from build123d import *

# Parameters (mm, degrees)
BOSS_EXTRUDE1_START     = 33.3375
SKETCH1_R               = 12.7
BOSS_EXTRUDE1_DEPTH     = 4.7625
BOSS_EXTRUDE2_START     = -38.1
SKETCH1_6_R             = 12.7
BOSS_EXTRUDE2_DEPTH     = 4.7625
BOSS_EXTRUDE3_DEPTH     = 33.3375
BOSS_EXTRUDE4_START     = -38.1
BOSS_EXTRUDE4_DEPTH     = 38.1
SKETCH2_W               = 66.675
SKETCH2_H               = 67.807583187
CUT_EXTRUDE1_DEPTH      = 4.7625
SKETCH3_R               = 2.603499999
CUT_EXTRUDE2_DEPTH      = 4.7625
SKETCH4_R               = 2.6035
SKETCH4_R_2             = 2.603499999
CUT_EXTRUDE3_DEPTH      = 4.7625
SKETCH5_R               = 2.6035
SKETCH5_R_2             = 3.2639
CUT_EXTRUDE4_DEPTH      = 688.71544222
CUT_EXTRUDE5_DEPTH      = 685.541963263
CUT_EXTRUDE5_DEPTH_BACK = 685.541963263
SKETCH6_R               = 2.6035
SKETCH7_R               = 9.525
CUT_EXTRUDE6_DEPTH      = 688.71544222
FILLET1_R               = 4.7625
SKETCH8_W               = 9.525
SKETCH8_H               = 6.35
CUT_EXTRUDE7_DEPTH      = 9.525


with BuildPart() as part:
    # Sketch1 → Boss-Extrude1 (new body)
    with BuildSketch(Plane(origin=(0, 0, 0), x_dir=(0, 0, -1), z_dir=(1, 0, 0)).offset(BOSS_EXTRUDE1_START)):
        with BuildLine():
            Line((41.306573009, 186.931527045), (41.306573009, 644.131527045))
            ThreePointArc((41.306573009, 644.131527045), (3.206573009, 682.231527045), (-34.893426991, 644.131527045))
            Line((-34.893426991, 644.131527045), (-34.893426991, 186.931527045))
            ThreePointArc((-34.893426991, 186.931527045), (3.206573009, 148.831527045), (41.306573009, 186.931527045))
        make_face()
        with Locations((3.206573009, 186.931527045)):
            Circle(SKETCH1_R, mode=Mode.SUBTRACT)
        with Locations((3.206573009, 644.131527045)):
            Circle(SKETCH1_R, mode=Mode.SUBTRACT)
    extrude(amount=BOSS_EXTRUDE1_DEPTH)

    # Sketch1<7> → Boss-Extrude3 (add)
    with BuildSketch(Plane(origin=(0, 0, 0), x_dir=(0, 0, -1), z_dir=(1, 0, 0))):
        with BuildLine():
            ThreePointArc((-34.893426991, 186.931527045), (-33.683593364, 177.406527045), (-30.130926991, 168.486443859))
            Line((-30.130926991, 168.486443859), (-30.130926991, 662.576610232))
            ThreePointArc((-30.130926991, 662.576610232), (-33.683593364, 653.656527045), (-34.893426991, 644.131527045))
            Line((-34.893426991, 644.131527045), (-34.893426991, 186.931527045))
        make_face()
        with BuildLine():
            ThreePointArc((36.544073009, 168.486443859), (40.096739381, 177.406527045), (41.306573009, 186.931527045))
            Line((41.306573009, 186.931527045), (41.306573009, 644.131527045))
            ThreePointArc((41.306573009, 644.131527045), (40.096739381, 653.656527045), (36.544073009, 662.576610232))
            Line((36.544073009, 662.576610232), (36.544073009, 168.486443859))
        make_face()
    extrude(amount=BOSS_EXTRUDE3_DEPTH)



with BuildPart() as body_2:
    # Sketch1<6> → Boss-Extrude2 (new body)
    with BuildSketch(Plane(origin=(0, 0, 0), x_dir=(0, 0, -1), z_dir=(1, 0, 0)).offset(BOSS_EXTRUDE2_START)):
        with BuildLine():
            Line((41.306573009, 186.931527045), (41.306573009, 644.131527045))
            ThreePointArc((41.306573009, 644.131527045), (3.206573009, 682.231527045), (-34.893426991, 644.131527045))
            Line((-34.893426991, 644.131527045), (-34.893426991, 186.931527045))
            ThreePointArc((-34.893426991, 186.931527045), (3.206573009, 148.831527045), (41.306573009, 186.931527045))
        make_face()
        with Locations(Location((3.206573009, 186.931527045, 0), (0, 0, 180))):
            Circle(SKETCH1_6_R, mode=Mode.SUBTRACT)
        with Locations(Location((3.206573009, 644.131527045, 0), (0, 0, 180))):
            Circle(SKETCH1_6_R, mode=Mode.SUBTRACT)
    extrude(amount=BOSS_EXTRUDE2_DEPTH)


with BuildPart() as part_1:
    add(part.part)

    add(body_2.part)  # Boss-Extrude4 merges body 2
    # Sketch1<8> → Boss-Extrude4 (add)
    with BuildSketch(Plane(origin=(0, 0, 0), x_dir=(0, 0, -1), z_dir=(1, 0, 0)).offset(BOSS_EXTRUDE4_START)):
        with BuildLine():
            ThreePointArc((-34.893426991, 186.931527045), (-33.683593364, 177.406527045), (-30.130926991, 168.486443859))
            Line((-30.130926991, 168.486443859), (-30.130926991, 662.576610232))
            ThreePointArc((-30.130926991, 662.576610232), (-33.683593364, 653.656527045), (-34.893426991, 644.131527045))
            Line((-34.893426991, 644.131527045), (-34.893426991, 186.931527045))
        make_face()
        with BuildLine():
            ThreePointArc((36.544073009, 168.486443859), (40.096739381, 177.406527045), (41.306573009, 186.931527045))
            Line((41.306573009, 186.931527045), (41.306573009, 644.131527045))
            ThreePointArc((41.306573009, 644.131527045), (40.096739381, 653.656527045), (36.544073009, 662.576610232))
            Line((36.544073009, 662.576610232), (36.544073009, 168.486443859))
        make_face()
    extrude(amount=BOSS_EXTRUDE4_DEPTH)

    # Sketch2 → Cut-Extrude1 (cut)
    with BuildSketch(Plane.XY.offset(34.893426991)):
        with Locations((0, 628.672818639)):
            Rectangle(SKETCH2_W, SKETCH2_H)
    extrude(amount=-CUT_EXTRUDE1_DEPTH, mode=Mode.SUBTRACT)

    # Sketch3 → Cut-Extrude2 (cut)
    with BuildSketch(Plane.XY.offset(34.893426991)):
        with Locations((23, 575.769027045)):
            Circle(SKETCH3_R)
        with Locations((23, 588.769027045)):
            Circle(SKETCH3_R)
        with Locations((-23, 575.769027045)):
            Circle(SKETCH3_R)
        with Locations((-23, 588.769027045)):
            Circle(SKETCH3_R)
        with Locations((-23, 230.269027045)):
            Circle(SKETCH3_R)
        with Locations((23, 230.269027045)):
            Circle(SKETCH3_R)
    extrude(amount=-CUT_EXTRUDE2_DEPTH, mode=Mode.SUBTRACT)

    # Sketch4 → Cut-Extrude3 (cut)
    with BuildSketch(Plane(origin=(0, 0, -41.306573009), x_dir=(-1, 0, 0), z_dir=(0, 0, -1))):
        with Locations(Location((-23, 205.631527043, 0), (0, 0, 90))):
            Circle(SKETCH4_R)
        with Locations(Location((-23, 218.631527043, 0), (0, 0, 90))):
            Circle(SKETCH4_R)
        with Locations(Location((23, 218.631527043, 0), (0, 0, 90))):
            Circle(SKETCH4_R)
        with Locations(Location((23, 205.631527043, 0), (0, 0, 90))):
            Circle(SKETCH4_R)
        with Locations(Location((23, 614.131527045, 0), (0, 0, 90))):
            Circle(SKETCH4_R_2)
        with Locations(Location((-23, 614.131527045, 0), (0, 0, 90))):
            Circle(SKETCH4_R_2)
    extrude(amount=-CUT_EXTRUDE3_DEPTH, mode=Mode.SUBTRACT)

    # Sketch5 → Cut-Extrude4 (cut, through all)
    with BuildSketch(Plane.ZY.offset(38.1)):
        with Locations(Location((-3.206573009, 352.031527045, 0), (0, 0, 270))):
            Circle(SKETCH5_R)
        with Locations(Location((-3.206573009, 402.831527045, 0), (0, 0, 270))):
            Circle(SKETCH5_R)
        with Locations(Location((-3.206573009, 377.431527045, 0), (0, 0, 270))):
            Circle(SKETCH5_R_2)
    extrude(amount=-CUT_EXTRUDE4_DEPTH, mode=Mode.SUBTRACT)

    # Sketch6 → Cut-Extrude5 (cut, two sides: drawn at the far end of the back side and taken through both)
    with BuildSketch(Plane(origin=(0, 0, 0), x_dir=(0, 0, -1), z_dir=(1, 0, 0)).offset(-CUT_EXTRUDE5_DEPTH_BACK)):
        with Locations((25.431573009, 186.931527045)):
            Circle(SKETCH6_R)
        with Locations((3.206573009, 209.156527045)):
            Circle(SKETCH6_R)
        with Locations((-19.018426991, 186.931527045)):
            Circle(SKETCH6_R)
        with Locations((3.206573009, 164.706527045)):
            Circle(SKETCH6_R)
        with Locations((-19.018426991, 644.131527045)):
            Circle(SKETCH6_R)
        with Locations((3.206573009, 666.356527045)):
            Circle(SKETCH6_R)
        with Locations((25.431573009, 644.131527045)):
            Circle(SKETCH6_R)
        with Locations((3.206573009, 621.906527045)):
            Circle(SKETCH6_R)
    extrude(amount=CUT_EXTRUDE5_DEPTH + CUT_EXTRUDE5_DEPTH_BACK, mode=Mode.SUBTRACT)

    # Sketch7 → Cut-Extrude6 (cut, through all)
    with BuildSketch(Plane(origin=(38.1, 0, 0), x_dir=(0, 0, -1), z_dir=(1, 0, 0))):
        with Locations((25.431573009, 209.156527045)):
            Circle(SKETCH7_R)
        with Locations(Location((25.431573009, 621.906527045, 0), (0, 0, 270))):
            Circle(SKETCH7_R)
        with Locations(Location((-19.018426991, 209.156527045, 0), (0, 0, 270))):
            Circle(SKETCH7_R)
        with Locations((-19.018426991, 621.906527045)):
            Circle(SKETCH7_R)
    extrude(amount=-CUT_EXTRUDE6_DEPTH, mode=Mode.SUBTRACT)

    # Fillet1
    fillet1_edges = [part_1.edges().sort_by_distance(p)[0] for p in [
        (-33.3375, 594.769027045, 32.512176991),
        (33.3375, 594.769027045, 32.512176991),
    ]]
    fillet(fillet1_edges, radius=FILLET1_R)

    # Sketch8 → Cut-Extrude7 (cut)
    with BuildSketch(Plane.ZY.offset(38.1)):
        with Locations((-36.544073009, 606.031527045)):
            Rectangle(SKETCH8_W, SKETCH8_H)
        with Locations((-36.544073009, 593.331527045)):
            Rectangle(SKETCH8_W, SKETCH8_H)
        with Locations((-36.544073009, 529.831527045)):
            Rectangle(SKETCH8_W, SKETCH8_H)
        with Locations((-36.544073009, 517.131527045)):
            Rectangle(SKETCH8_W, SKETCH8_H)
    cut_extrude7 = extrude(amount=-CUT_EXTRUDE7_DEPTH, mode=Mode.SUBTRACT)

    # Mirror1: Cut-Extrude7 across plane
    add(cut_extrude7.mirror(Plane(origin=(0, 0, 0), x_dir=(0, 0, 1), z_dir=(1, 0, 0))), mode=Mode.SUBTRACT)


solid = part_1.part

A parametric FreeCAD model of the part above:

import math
import FreeCAD as App
import Part
import Sketcher

V = App.Vector
Q = App.Units.Quantity


def edges_at(feature, points):
    """Names of the edges that pass closest to the given points."""
    edges = feature.Shape.Edges
    near = lambda p: min(range(len(edges)), key=lambda i: edges[i].distToShape(Part.Vertex(*p))[0])
    return sorted({f"Edge{near(p) + 1}" for p in points})


def add_polygon(sketch, points):
    """Adds a closed chain of lines whose ends are joined by coincident constraints."""
    first, n = sketch.GeometryCount, len(points)
    for a, b in zip(points, points[1:] + points[:1]):
        sketch.addGeometry(Part.LineSegment(App.Vector(*a, 0), App.Vector(*b, 0)), False)
    for i in range(n):
        sketch.addConstraint(Sketcher.Constraint("Coincident", first + i, 2, first + (i + 1) % n, 1))

doc = App.newDocument("Part")
body = doc.addObject("PartDesign::Body", "Body")

sketch1 = body.newObject("Sketcher::SketchObject", "Sketch")
sketch1.AttachmentSupport = (doc.getObject("YZ_Plane"), [""])
sketch1.MapMode = "FlatFace"
sketch1.AttachmentOffset = App.Placement(V(0, 0, 1.3125 * 25.4), App.Rotation())
sketch1.addGeometry([
    Part.LineSegment(V(187, -41, 0), V(644, -41, 0)),
    Part.ArcOfCircle(Part.Circle(V(644, -3, 0), V(0, 0, 1), 38), math.radians(-90), math.radians(90)),
    Part.LineSegment(V(644, 35, 0), V(187, 35, 0)),
    Part.ArcOfCircle(Part.Circle(V(187, -3, 0), V(0, 0, 1), 38), math.radians(90), math.radians(270)),
    Part.Circle(V(187, -3, 0), V(0, 0, 1), 13),
    Part.Circle(V(644, -3, 0), V(0, 0, 1), 13),
], False)
sketch1.addConstraint([
    Sketcher.Constraint("Tangent", 0, 2, 1, 1),
    Sketcher.Constraint("Tangent", 1, 2, 2, 1),
    Sketcher.Constraint("Tangent", 2, 2, 3, 1),
    Sketcher.Constraint("Tangent", 3, 2, 0, 1),
    Sketcher.Constraint("Horizontal", 0),
    Sketcher.Constraint("Horizontal", 2),
    Sketcher.Constraint("Coincident", 4, 3, 3, 3),
    Sketcher.Constraint("Coincident", 5, 3, 1, 3),
    Sketcher.Constraint("Equal", 4, 5),
    Sketcher.Constraint("Diameter", 4, Q("1 in")),
    Sketcher.Constraint("Radius", 1, Q("1.5 in")),
    Sketcher.Constraint("DistanceX", 0, 1, 0, 2, Q("18 in")),
    Sketcher.Constraint("DistanceX", -1, 1, 1, 3, Q("644.131527 mm")),
    Sketcher.Constraint("DistanceY", 1, 3, -1, 1, Q("3.206573 mm")),
])
pad1 = body.newObject("PartDesign::Pad", "Pad")
pad1.Profile = sketch1
pad1.Length = Q("0.1875 in")

sketch2 = body.newObject("Sketcher::SketchObject", "Sketch001")
sketch2.AttachmentSupport = (doc.getObject("YZ_Plane"), [""])
sketch2.MapMode = "FlatFace"
sketch2.addGeometry([
    Part.ArcOfCircle(Part.Circle(V(187, -3, 0), V(0, 0, 1), 38), math.radians(90), math.radians(119)),
    Part.LineSegment(V(168, 30, 0), V(663, 30, 0)),
    Part.ArcOfCircle(Part.Circle(V(644, -3, 0), V(0, 0, 1), 38), math.radians(61), math.radians(90)),
    Part.LineSegment(V(644, 35, 0), V(187, 35, 0)),
    Part.ArcOfCircle(Part.Circle(V(187, -3, 0), V(0, 0, 1), 38), math.radians(-119), math.radians(-90)),
    Part.LineSegment(V(187, -41, 0), V(644, -41, 0)),
    Part.ArcOfCircle(Part.Circle(V(644, -3, 0), V(0, 0, 1), 38), math.radians(-90), math.radians(-61)),
    Part.LineSegment(V(663, -37, 0), V(168, -37, 0)),
], False)
sketch2.addConstraint([
    Sketcher.Constraint("Coincident", 0, 2, 1, 1),
    Sketcher.Constraint("Coincident", 1, 2, 2, 1),
    Sketcher.Constraint("Tangent", 2, 2, 3, 1),
    Sketcher.Constraint("Tangent", 3, 2, 0, 1),
    Sketcher.Constraint("Tangent", 4, 2, 5, 1),
    Sketcher.Constraint("Tangent", 5, 2, 6, 1),
    Sketcher.Constraint("Coincident", 6, 2, 7, 1),
    Sketcher.Constraint("Coincident", 7, 2, 4, 1),
    Sketcher.Constraint("Horizontal", 1),
    Sketcher.Constraint("Horizontal", 3),
    Sketcher.Constraint("Horizontal", 5),
    Sketcher.Constraint("Horizontal", 7),
    Sketcher.Constraint("Coincident", 4, 3, 0, 3),
    Sketcher.Constraint("Coincident", 6, 3, 2, 3),
    Sketcher.Constraint("Equal", 0, 2),
    Sketcher.Constraint("Equal", 2, 4),
    Sketcher.Constraint("Vertical", 1, 2, 6, 2),
    Sketcher.Constraint("Radius", 0, Q("1.5 in")),
    Sketcher.Constraint("DistanceX", 3, 2, 3, 1, Q("18 in")),
    Sketcher.Constraint("DistanceY", 0, 3, 0, 2, Q("1.3125 in")),
    Sketcher.Constraint("DistanceX", -1, 1, 1, 2, Q("662.57661 mm")),
    Sketcher.Constraint("DistanceY", 0, 3, -1, 1, Q("3.206573 mm")),
])
pad2 = body.newObject("PartDesign::Pad", "Pad001")
pad2.Profile = sketch2
pad2.Length = Q("1.3125 in")
body2 = doc.addObject("PartDesign::Body", "Body001")

sketch3 = body2.newObject("Sketcher::SketchObject", "Sketch002")
sketch3.AttachmentSupport = (doc.getObject("YZ_Plane001"), [""])
sketch3.MapMode = "FlatFace"
sketch3.AttachmentOffset = App.Placement(V(0, 0, -1.5 * 25.4), App.Rotation())
sketch3.addGeometry([
    Part.LineSegment(V(187, -41, 0), V(644, -41, 0)),
    Part.ArcOfCircle(Part.Circle(V(644, -3, 0), V(0, 0, 1), 38), math.radians(-90), math.radians(90)),
    Part.LineSegment(V(644, 35, 0), V(187, 35, 0)),
    Part.ArcOfCircle(Part.Circle(V(187, -3, 0), V(0, 0, 1), 38), math.radians(90), math.radians(270)),
    Part.Circle(V(187, -3, 0), V(0, 0, 1), 13),
    Part.Circle(V(644, -3, 0), V(0, 0, 1), 13),
], False)
sketch3.addConstraint([
    Sketcher.Constraint("Tangent", 0, 2, 1, 1),
    Sketcher.Constraint("Tangent", 1, 2, 2, 1),
    Sketcher.Constraint("Tangent", 2, 2, 3, 1),
    Sketcher.Constraint("Tangent", 3, 2, 0, 1),
    Sketcher.Constraint("Horizontal", 0),
    Sketcher.Constraint("Horizontal", 2),
    Sketcher.Constraint("Coincident", 4, 3, 3, 3),
    Sketcher.Constraint("Coincident", 5, 3, 1, 3),
    Sketcher.Constraint("Equal", 4, 5),
    Sketcher.Constraint("Diameter", 4, Q("1 in")),
    Sketcher.Constraint("Radius", 1, Q("1.5 in")),
    Sketcher.Constraint("DistanceX", 0, 1, 0, 2, Q("18 in")),
    Sketcher.Constraint("DistanceX", -1, 1, 1, 3, Q("644.131527 mm")),
    Sketcher.Constraint("DistanceY", 1, 3, -1, 1, Q("3.206573 mm")),
])
pad3 = body2.newObject("PartDesign::Pad", "Pad002")
pad3.Profile = sketch3
pad3.Length = Q("0.1875 in")
body.AllowCompound = True
doc.recompute()

boolean = body.newObject("PartDesign::Boolean", "Boolean")
boolean.Type = "Fuse"
boolean.addObjects([body2])

sketch4 = body.newObject("Sketcher::SketchObject", "Sketch003")
sketch4.AttachmentSupport = (doc.getObject("YZ_Plane"), [""])
sketch4.MapMode = "FlatFace"
sketch4.AttachmentOffset = App.Placement(V(0, 0, -1.5 * 25.4), App.Rotation())
sketch4.addGeometry([
    Part.ArcOfCircle(Part.Circle(V(187, -3, 0), V(0, 0, 1), 38), math.radians(90), math.radians(119)),
    Part.LineSegment(V(168, 30, 0), V(663, 30, 0)),
    Part.ArcOfCircle(Part.Circle(V(644, -3, 0), V(0, 0, 1), 38), math.radians(61), math.radians(90)),
    Part.LineSegment(V(644, 35, 0), V(187, 35, 0)),
    Part.ArcOfCircle(Part.Circle(V(187, -3, 0), V(0, 0, 1), 38), math.radians(-119), math.radians(-90)),
    Part.LineSegment(V(187, -41, 0), V(644, -41, 0)),
    Part.ArcOfCircle(Part.Circle(V(644, -3, 0), V(0, 0, 1), 38), math.radians(-90), math.radians(-61)),
    Part.LineSegment(V(663, -37, 0), V(168, -37, 0)),
], False)
sketch4.addConstraint([
    Sketcher.Constraint("Coincident", 0, 2, 1, 1),
    Sketcher.Constraint("Coincident", 1, 2, 2, 1),
    Sketcher.Constraint("Tangent", 2, 2, 3, 1),
    Sketcher.Constraint("Tangent", 3, 2, 0, 1),
    Sketcher.Constraint("Tangent", 4, 2, 5, 1),
    Sketcher.Constraint("Tangent", 5, 2, 6, 1),
    Sketcher.Constraint("Coincident", 6, 2, 7, 1),
    Sketcher.Constraint("Coincident", 7, 2, 4, 1),
    Sketcher.Constraint("Horizontal", 1),
    Sketcher.Constraint("Horizontal", 3),
    Sketcher.Constraint("Horizontal", 5),
    Sketcher.Constraint("Horizontal", 7),
    Sketcher.Constraint("Coincident", 4, 3, 0, 3),
    Sketcher.Constraint("Coincident", 6, 3, 2, 3),
    Sketcher.Constraint("Equal", 0, 2),
    Sketcher.Constraint("Equal", 2, 4),
    Sketcher.Constraint("Vertical", 1, 2, 6, 2),
    Sketcher.Constraint("Radius", 0, Q("1.5 in")),
    Sketcher.Constraint("DistanceX", 3, 2, 3, 1, Q("18 in")),
    Sketcher.Constraint("DistanceY", 0, 3, 0, 2, Q("1.3125 in")),
    Sketcher.Constraint("DistanceX", -1, 1, 1, 2, Q("662.57661 mm")),
    Sketcher.Constraint("DistanceY", 0, 3, -1, 1, Q("3.206573 mm")),
])
pad4 = body.newObject("PartDesign::Pad", "Pad003")
pad4.Profile = sketch4
pad4.Length = Q("1.5 in")

sketch5 = body.newObject("Sketcher::SketchObject", "Sketch004")
sketch5.AttachmentSupport = (doc.getObject("XY_Plane"), [""])
sketch5.MapMode = "FlatFace"
sketch5.AttachmentOffset = App.Placement(V(0, 0, 34.893427), App.Rotation())
add_polygon(sketch5, [(-33, 663), (-33, 595), (33, 595), (33, 663)])
sketch5.addConstraint([
    Sketcher.Constraint("Vertical", 0),
    Sketcher.Constraint("Horizontal", 1),
    Sketcher.Constraint("Vertical", 2),
    Sketcher.Constraint("Horizontal", 3),
    Sketcher.Constraint("DistanceX", 1, 1, 1, 2, Q("2.625 in")),
    Sketcher.Constraint("DistanceX", 0, 2, -1, 1, Q("1.3125 in")),
    Sketcher.Constraint("DistanceY", 0, 2, 0, 1, Q("67.807583 mm")),
    Sketcher.Constraint("DistanceY", -1, 1, 2, 2, Q("662.57661 mm")),
])
pocket1 = body.newObject("PartDesign::Pocket", "Pocket")
pocket1.Profile = sketch5
pocket1.Length = Q("0.1875 in")

sketch6 = body.newObject("Sketcher::SketchObject", "Sketch005")
sketch6.AttachmentSupport = (doc.getObject("XY_Plane"), [""])
sketch6.MapMode = "FlatFace"
sketch6.AttachmentOffset = App.Placement(V(0, 0, 34.893427), App.Rotation())
sketch6.addGeometry([
    Part.Circle(V(23, 575.8, 0), V(0, 0, 1), 2.6),
    Part.Circle(V(23, 588.8, 0), V(0, 0, 1), 2.6),
    Part.Circle(V(-23, 575.8, 0), V(0, 0, 1), 2.6),
    Part.Circle(V(-23, 588.8, 0), V(0, 0, 1), 2.6),
    Part.Circle(V(-23, 230.3, 0), V(0, 0, 1), 2.6),
    Part.Circle(V(23, 230.3, 0), V(0, 0, 1), 2.6),
], False)
sketch6.addConstraint([
    Sketcher.Constraint("Equal", 0, 1),
    Sketcher.Constraint("Equal", 1, 2),
    Sketcher.Constraint("Equal", 2, 3),
    Sketcher.Constraint("Equal", 3, 4),
    Sketcher.Constraint("Equal", 4, 5),
    Sketcher.Constraint("Symmetric", 0, 3, 2, 3, -2),
    Sketcher.Constraint("Symmetric", 1, 3, 3, 3, -2),
    Sketcher.Constraint("Symmetric", 4, 3, 5, 3, -2),
    Sketcher.Constraint("Vertical", 0, 3, 1, 3),
    Sketcher.Constraint("Vertical", 3, 3, 4, 3),
    Sketcher.Constraint("Diameter", 0, Q("0.205 in")),
    Sketcher.Constraint("DistanceX", -1, 1, 0, 3, Q("23 mm")),
    Sketcher.Constraint("DistanceY", 0, 3, 1, 3, Q("13 mm")),
    Sketcher.Constraint("DistanceY", 4, 3, 2, 3, Q("345.5 mm")),
    Sketcher.Constraint("DistanceY", -1, 1, 0, 3, Q("575.769027 mm")),
])
pocket2 = body.newObject("PartDesign::Pocket", "Pocket001")
pocket2.Profile = sketch6
pocket2.Length = Q("0.1875 in")

sketch7 = body.newObject("Sketcher::SketchObject", "Sketch006")
sketch7.AttachmentSupport = (doc.getObject("XY_Plane"), [""])
sketch7.MapMode = "FlatFace"
sketch7.AttachmentOffset = App.Placement(V(0, 0, -41.306573), App.Rotation())
sketch7.addGeometry([
    Part.Circle(V(23, 205.6, 0), V(0, 0, 1), 2.6),
    Part.Circle(V(23, 218.6, 0), V(0, 0, 1), 2.6),
    Part.Circle(V(-23, 218.6, 0), V(0, 0, 1), 2.6),
    Part.Circle(V(-23, 205.6, 0), V(0, 0, 1), 2.6),
    Part.Circle(V(-23, 614.1, 0), V(0, 0, 1), 2.6),
    Part.Circle(V(23, 614.1, 0), V(0, 0, 1), 2.6),
], False)
sketch7.addConstraint([
    Sketcher.Constraint("Equal", 0, 1),
    Sketcher.Constraint("Equal", 1, 2),
    Sketcher.Constraint("Equal", 2, 3),
    Sketcher.Constraint("Equal", 3, 4),
    Sketcher.Constraint("Equal", 4, 5),
    Sketcher.Constraint("Symmetric", 1, 3, 2, 3, -2),
    Sketcher.Constraint("Symmetric", 0, 3, 3, 3, -2),
    Sketcher.Constraint("Symmetric", 4, 3, 5, 3, -2),
    Sketcher.Constraint("Vertical", 0, 3, 1, 3),
    Sketcher.Constraint("Vertical", 3, 3, 4, 3),
    Sketcher.Constraint("Diameter", 0, Q("0.205 in")),
    Sketcher.Constraint("DistanceX", -1, 1, 0, 3, Q("23 mm")),
    Sketcher.Constraint("DistanceY", 0, 3, 1, 3, Q("13 mm")),
    Sketcher.Constraint("DistanceY", 2, 3, 4, 3, Q("395.5 mm")),
    Sketcher.Constraint("DistanceY", -1, 1, 0, 3, Q("205.631527 mm")),
])
pocket3 = body.newObject("PartDesign::Pocket", "Pocket002")
pocket3.Profile = sketch7
pocket3.Length = Q("0.1875 in")
pocket3.Reversed = True

sketch8 = body.newObject("Sketcher::SketchObject", "Sketch007")
sketch8.AttachmentSupport = (doc.getObject("YZ_Plane"), [""])
sketch8.MapMode = "FlatFace"
sketch8.AttachmentOffset = App.Placement(V(0, 0, -1.5 * 25.4), App.Rotation())
sketch8.addGeometry([
    Part.Circle(V(352, -3.2, 0), V(0, 0, 1), 2.6),
    Part.Circle(V(402.8, -3.2, 0), V(0, 0, 1), 2.6),
    Part.Circle(V(377.4, -3.2, 0), V(0, 0, 1), 3.3),
], False)
sketch8.addConstraint([
    Sketcher.Constraint("Equal", 0, 1),
    Sketcher.Constraint("Horizontal", 0, 3, 1, 3),
    Sketcher.Constraint("Horizontal", 1, 3, 2, 3),
    Sketcher.Constraint("Diameter", 0, Q("0.205 in")),
    Sketcher.Constraint("Diameter", 2, Q("0.257 in")),
    Sketcher.Constraint("DistanceX", 0, 3, 1, 3, Q("2 in")),
    Sketcher.Constraint("DistanceX", 0, 3, 2, 3, Q("1 in")),
    Sketcher.Constraint("DistanceX", -1, 1, 0, 3, Q("352.031527 mm")),
    Sketcher.Constraint("DistanceY", 0, 3, -1, 1, Q("3.206573 mm")),
])
pocket4 = body.newObject("PartDesign::Pocket", "Pocket003")
pocket4.Profile = sketch8
pocket4.Type = "ThroughAll"
pocket4.Reversed = True

sketch9 = body.newObject("Sketcher::SketchObject", "Sketch008")
sketch9.AttachmentSupport = (doc.getObject("YZ_Plane"), [""])
sketch9.MapMode = "FlatFace"
sketch9.addGeometry([
    Part.Circle(V(186.9, -25.4, 0), V(0, 0, 1), 2.6),
    Part.Circle(V(209.2, -3.2, 0), V(0, 0, 1), 2.6),
    Part.Circle(V(186.9, 19, 0), V(0, 0, 1), 2.6),
    Part.Circle(V(164.7, -3.2, 0), V(0, 0, 1), 2.6),
    Part.Circle(V(644.1, 19, 0), V(0, 0, 1), 2.6),
    Part.Circle(V(666.4, -3.2, 0), V(0, 0, 1), 2.6),
    Part.Circle(V(644.1, -25.4, 0), V(0, 0, 1), 2.6),
    Part.Circle(V(621.9, -3.2, 0), V(0, 0, 1), 2.6),
], False)
sketch9.addConstraint([
    Sketcher.Constraint("Equal", 0, 1),
    Sketcher.Constraint("Equal", 1, 2),
    Sketcher.Constraint("Equal", 2, 3),
    Sketcher.Constraint("Equal", 3, 4),
    Sketcher.Constraint("Equal", 4, 5),
    Sketcher.Constraint("Equal", 5, 6),
    Sketcher.Constraint("Equal", 6, 7),
    Sketcher.Constraint("Horizontal", 1, 3, 3, 3),
    Sketcher.Constraint("Horizontal", 2, 3, 4, 3),
    Sketcher.Constraint("Horizontal", 3, 3, 5, 3),
    Sketcher.Constraint("Horizontal", 0, 3, 6, 3),
    Sketcher.Constraint("Horizontal", 5, 3, 7, 3),
    Sketcher.Constraint("Vertical", 0, 3, 2, 3),
    Sketcher.Constraint("Vertical", 4, 3, 6, 3),
    Sketcher.Constraint("Diameter", 0, Q("0.205 in")),
    Sketcher.Constraint("DistanceX", 2, 3, 4, 3, Q("18 in")),
    Sketcher.Constraint("DistanceX", 1, 3, 5, 3, Q("18 in")),
    Sketcher.Constraint("DistanceY", 0, 3, 2, 3, Q("1.75 in")),
    Sketcher.Constraint("DistanceX", 3, 3, 1, 3, Q("1.75 in")),
    Sketcher.Constraint("DistanceX", 7, 3, 5, 3, Q("1.75 in")),
    Sketcher.Constraint("DistanceX", 0, 3, 1, 3, Q("0.875 in")),
    Sketcher.Constraint("DistanceY", 0, 3, 1, 3, Q("0.875 in")),
    Sketcher.Constraint("DistanceX", -1, 1, 0, 3, Q("186.931527 mm")),
    Sketcher.Constraint("DistanceY", 0, 3, -1, 1, Q("25.431573 mm")),
])
pocket5 = body.newObject("PartDesign::Pocket", "Pocket004")
pocket5.Profile = sketch9
pocket5.Type = "ThroughAll"
pocket5.Midplane = True

sketch10 = body.newObject("Sketcher::SketchObject", "Sketch009")
sketch10.AttachmentSupport = (doc.getObject("YZ_Plane"), [""])
sketch10.MapMode = "FlatFace"
sketch10.AttachmentOffset = App.Placement(V(0, 0, 1.5 * 25.4), App.Rotation())
sketch10.addGeometry([
    Part.Circle(V(209, -25, 0), V(0, 0, 1), 10),
    Part.Circle(V(622, -25, 0), V(0, 0, 1), 10),
    Part.Circle(V(209, 19, 0), V(0, 0, 1), 10),
    Part.Circle(V(622, 19, 0), V(0, 0, 1), 10),
], False)
sketch10.addConstraint([
    Sketcher.Constraint("Equal", 0, 1),
    Sketcher.Constraint("Equal", 1, 2),
    Sketcher.Constraint("Equal", 2, 3),
    Sketcher.Constraint("Horizontal", 0, 3, 1, 3),
    Sketcher.Constraint("Horizontal", 2, 3, 3, 3),
    Sketcher.Constraint("Vertical", 0, 3, 2, 3),
    Sketcher.Constraint("Vertical", 1, 3, 3, 3),
    Sketcher.Constraint("Diameter", 0, Q("0.75 in")),
    Sketcher.Constraint("DistanceX", 0, 3, 1, 3, Q("16.25 in")),
    Sketcher.Constraint("DistanceY", 0, 3, 2, 3, Q("1.75 in")),
    Sketcher.Constraint("DistanceX", -1, 1, 0, 3, Q("209.156527 mm")),
    Sketcher.Constraint("DistanceY", 0, 3, -1, 1, Q("25.431573 mm")),
])
pocket6 = body.newObject("PartDesign::Pocket", "Pocket005")
pocket6.Profile = sketch10
pocket6.Type = "ThroughAll"
doc.recompute()

fillet = body.newObject("PartDesign::Fillet", "Fillet")
fillet.Base = (pocket6, edges_at(pocket6, [(-33.337, 594.769, 32.512), (33.337, 594.769, 32.512)]))
fillet.Radius = Q("0.1875 in")

sketch11 = body.newObject("Sketcher::SketchObject", "Sketch010")
sketch11.AttachmentSupport = (doc.getObject("YZ_Plane"), [""])
sketch11.MapMode = "FlatFace"
sketch11.AttachmentOffset = App.Placement(V(0, 0, -1.5 * 25.4), App.Rotation())
add_polygon(sketch11, [(609, -41), (603, -41), (603, -32), (609, -32)])
add_polygon(sketch11, [(597, -41), (590, -41), (590, -32), (597, -32)])
add_polygon(sketch11, [(533, -41), (527, -41), (527, -32), (533, -32)])
add_polygon(sketch11, [(520, -41), (514, -41), (514, -32), (520, -32)])
sketch11.addConstraint([
    Sketcher.Constraint("Horizontal", 0),
    Sketcher.Constraint("Vertical", 1),
    Sketcher.Constraint("Horizontal", 2),
    Sketcher.Constraint("Vertical", 3),
    Sketcher.Constraint("Horizontal", 4),
    Sketcher.Constraint("Vertical", 5),
    Sketcher.Constraint("Horizontal", 6),
    Sketcher.Constraint("Vertical", 7),
    Sketcher.Constraint("Horizontal", 8),
    Sketcher.Constraint("Vertical", 9),
    Sketcher.Constraint("Horizontal", 10),
    Sketcher.Constraint("Vertical", 11),
    Sketcher.Constraint("Horizontal", 12),
    Sketcher.Constraint("Vertical", 13),
    Sketcher.Constraint("Horizontal", 14),
    Sketcher.Constraint("Vertical", 15),
    Sketcher.Constraint("Horizontal", 3, 2, 4, 2),
    Sketcher.Constraint("Horizontal", 2, 2, 5, 2),
    Sketcher.Constraint("Horizontal", 7, 2, 8, 2),
    Sketcher.Constraint("Horizontal", 6, 2, 9, 2),
    Sketcher.Constraint("Horizontal", 11, 2, 12, 2),
    Sketcher.Constraint("Horizontal", 10, 2, 13, 2),
    Sketcher.Constraint("Equal", 2, 4),
    Sketcher.Constraint("Equal", 6, 8),
    Sketcher.Constraint("Equal", 10, 12),
    Sketcher.Constraint("DistanceX", 8, 2, 0, 2, Q("3 in")),
    Sketcher.Constraint("DistanceX", 12, 2, 4, 2, Q("3 in")),
    Sketcher.Constraint("DistanceX", 0, 2, 0, 1, Q("0.25 in")),
    Sketcher.Constraint("DistanceX", 4, 2, 0, 2, Q("0.5 in")),
    Sketcher.Constraint("DistanceY", 1, 1, 1, 2, Q("0.375 in")),
    Sketcher.Constraint("DistanceX", -1, 1, 0, 2, Q("602.856527 mm")),
    Sketcher.Constraint("DistanceY", 0, 2, -1, 1, Q("41.306573 mm")),
])
pocket7 = body.newObject("PartDesign::Pocket", "Pocket006")
pocket7.Profile = sketch11
pocket7.Length = Q("0.375 in")
pocket7.Reversed = True
doc.recompute()

mirrored = body.newObject("PartDesign::Mirrored", "Mirrored")
mirrored.Originals = [pocket7]
mirrored.MirrorPlane = (doc.getObject("YZ_Plane"), [""])
body.Tip = mirrored

doc.recompute()
